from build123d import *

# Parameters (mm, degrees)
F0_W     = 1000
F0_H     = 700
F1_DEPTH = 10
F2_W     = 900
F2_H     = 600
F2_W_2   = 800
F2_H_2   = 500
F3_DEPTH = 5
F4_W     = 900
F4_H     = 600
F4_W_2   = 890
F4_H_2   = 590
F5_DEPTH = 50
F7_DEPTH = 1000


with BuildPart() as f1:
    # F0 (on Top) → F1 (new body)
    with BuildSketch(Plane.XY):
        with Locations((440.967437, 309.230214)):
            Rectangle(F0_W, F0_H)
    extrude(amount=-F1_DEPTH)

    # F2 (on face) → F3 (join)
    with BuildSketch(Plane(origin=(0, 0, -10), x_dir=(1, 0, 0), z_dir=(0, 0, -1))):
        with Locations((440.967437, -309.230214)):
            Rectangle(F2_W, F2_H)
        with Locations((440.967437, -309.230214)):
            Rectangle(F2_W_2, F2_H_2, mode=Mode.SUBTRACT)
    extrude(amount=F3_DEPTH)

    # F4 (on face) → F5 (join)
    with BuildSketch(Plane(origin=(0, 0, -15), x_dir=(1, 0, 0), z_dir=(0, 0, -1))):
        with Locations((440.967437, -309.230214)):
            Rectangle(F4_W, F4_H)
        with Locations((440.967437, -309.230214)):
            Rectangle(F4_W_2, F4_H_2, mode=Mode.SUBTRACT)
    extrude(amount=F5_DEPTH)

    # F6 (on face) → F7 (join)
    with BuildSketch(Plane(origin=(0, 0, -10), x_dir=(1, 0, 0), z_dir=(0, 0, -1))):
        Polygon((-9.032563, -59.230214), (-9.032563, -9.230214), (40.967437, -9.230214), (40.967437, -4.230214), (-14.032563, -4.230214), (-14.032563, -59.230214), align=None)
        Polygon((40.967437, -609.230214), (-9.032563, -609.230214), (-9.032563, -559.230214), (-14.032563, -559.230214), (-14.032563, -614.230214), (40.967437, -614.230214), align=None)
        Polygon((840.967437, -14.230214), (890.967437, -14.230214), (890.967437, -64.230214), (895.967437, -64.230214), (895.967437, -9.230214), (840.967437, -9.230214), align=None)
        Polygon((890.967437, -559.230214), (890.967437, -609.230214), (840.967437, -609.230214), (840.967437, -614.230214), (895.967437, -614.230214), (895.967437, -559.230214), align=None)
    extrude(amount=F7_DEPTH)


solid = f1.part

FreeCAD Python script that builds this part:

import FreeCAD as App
import Part
import Sketcher


def add_polygon(sketch, points):
    """Adds a closed chain of lines whose ends are joined by coincident constraints."""
    first, n = sketch.GeometryCount, len(points)
    for a, b in zip(points, points[1:] + points[:1]):
        sketch.addGeometry(Part.LineSegment(App.Vector(*a, 0), App.Vector(*b, 0)), False)
    for i in range(n):
        sketch.addConstraint(Sketcher.Constraint("Coincident", first + i, 2, first + (i + 1) % n, 1))

doc = App.newDocument("Part")
params = doc.addObject("Spreadsheet::Sheet", "Params")
for row, (alias, value) in enumerate([
    ("sketch1_width", "1000 mm"),
    ("sketch1_height", "700 mm"),
    ("pad1_length", "10 mm"),
    ("sketch2_width", "900 mm"),
    ("sketch2_width2", "800 mm"),
    ("sketch2_height", "600 mm"),
    ("sketch2_height2", "500 mm"),
    ("pad2_length", "5 mm"),
    ("sketch3_width", "900 mm"),
    ("sketch3_width2", "890 mm"),
    ("sketch3_height", "600 mm"),
    ("sketch3_height2", "590 mm"),
    ("pad3_length", "50 mm"),
    ("sketch4_width", "50 mm"),
    ("sketch4_width2", "55 mm"),
    ("pad4_length", "1000 mm"),
], start=1):
    params.set(f"A{row}", alias)
    params.set(f"B{row}", "=" + value)
    params.setAlias(f"B{row}", alias)

body = doc.addObject("PartDesign::Body", "Body")

# Sketch on XY plane
sketch1 = body.newObject("Sketcher::SketchObject", "Sketch")
sketch1.AttachmentSupport = (doc.getObject("XY_Plane"), [""])
sketch1.MapMode = "FlatFace"
add_polygon(sketch1, [(-59, 659), (-59, -41), (941, -41), (941, 659)])  # lines 0-3
sketch1.addConstraint([
    Sketcher.Constraint("Vertical", 0),
    Sketcher.Constraint("Horizontal", 1),
    Sketcher.Constraint("Vertical", 2),
    Sketcher.Constraint("Horizontal", 3),
    Sketcher.Constraint("DistanceX", 1, 1, 1, 2, 1000.0),
    Sketcher.Constraint("DistanceY", 0, 2, 0, 1, 700.0),
    Sketcher.Constraint("DistanceX", 0, 2, -1, 1, 59.032563),
    Sketcher.Constraint("DistanceY", 0, 2, -1, 1, 40.769786),
])
sketch1.setExpression("Constraints[8]", "Params.sketch1_width")
sketch1.setExpression("Constraints[9]", "Params.sketch1_height")
pad1 = body.newObject("PartDesign::Pad", "Pad")
pad1.Profile = sketch1
pad1.setExpression("Length", "Params.pad1_length")
pad1.Reversed = True

# Sketch on XY plane
sketch2 = body.newObject("Sketcher::SketchObject", "Sketch001")
sketch2.AttachmentSupport = (doc.getObject("XY_Plane"), [""])
sketch2.MapMode = "FlatFace"
sketch2.AttachmentOffset = App.Placement(App.Vector(0, 0, -10), App.Rotation())
add_polygon(sketch2, [(-9, 9), (-9, 609), (891, 609), (891, 9)])  # lines 0-3
add_polygon(sketch2, [(841, 559), (41, 559), (41, 59), (841, 59)])  # lines 4-7
sketch2.addConstraint([
    Sketcher.Constraint("Vertical", 0),
    Sketcher.Constraint("Horizontal", 1),
    Sketcher.Constraint("Vertical", 2),
    Sketcher.Constraint("Horizontal", 3),
    Sketcher.Constraint("Horizontal", 4),
    Sketcher.Constraint("Vertical", 5),
    Sketcher.Constraint("Horizontal", 6),
    Sketcher.Constraint("Vertical", 7),
    Sketcher.Constraint("DistanceX", 1, 1, 1, 2, 900.0),
    Sketcher.Constraint("DistanceX", 4, 2, 4, 1, 800.0),
    Sketcher.Constraint("DistanceY", 0, 1, 0, 2, 600.0),
    Sketcher.Constraint("DistanceY", 5, 2, 5, 1, 500.0),
    Sketcher.Constraint("DistanceX", 0, 2, 4, 2, 50.0),
    Sketcher.Constraint("DistanceY", 4, 2, 0, 2, 50.0),
    Sketcher.Constraint("DistanceX", 0, 2, -1, 1, 9.032563),
    Sketcher.Constraint("DistanceY", -1, 1, 0, 2, 609.230214),
])
sketch2.setExpression("Constraints[16]", "Params.sketch2_width")
sketch2.setExpression("Constraints[17]", "Params.sketch2_width2")
sketch2.setExpression("Constraints[18]", "Params.sketch2_height")
sketch2.setExpression("Constraints[19]", "Params.sketch2_height2")
pad2 = body.newObject("PartDesign::Pad", "Pad001")
pad2.Profile = sketch2
pad2.setExpression("Length", "Params.pad2_length")
pad2.Reversed = True

# Sketch on XY plane
sketch3 = body.newObject("Sketcher::SketchObject", "Sketch002")
sketch3.AttachmentSupport = (doc.getObject("XY_Plane"), [""])
sketch3.MapMode = "FlatFace"
sketch3.AttachmentOffset = App.Placement(App.Vector(0, 0, -15), App.Rotation())
add_polygon(sketch3, [(-9, 9), (-9, 609), (891, 609), (891, 9)])  # lines 0-3
add_polygon(sketch3, [(886, 604), (-4, 604), (-4, 14), (886, 14)])  # lines 4-7
sketch3.addConstraint([
    Sketcher.Constraint("Vertical", 0),
    Sketcher.Constraint("Horizontal", 1),
    Sketcher.Constraint("Vertical", 2),
    Sketcher.Constraint("Horizontal", 3),
    Sketcher.Constraint("Horizontal", 4),
    Sketcher.Constraint("Vertical", 5),
    Sketcher.Constraint("Horizontal", 6),
    Sketcher.Constraint("Vertical", 7),
    Sketcher.Constraint("DistanceX", 1, 1, 1, 2, 900.0),
    Sketcher.Constraint("DistanceX", 4, 2, 4, 1, 890.0),
    Sketcher.Constraint("DistanceY", 0, 1, 0, 2, 600.0),
    Sketcher.Constraint("DistanceY", 5, 2, 5, 1, 590.0),
    Sketcher.Constraint("DistanceX", 0, 2, 4, 2, 5.0),
    Sketcher.Constraint("DistanceY", 4, 2, 0, 2, 5.0),
    Sketcher.Constraint("DistanceX", 0, 2, -1, 1, 9.032563),
    Sketcher.Constraint("DistanceY", -1, 1, 0, 2, 609.230214),
])
sketch3.setExpression("Constraints[16]", "Params.sketch3_width")
sketch3.setExpression("Constraints[17]", "Params.sketch3_width2")
sketch3.setExpression("Constraints[18]", "Params.sketch3_height")
sketch3.setExpression("Constraints[19]", "Params.sketch3_height2")
pad3 = body.newObject("PartDesign::Pad", "Pad002")
pad3.Profile = sketch3
pad3.setExpression("Length", "Params.pad3_length")
pad3.Reversed = True

# Sketch on XY plane
sketch4 = body.newObject("Sketcher::SketchObject", "Sketch003")
sketch4.AttachmentSupport = (doc.getObject("XY_Plane"), [""])
sketch4.MapMode = "FlatFace"
sketch4.AttachmentOffset = App.Placement(App.Vector(0, 0, -10), App.Rotation())
add_polygon(sketch4, [(-9, 59), (-9, 9), (41, 9), (41, 4), (-14, 4), (-14, 59)])  # lines 0-5
add_polygon(sketch4, [(41, 609), (-9, 609), (-9, 559), (-14, 559), (-14, 614), (41, 614)])  # lines 6-11
add_polygon(sketch4, [(841, 14), (891, 14), (891, 64), (896, 64), (896, 9), (841, 9)])  # lines 12-17
add_polygon(sketch4, [(891, 559), (891, 609), (841, 609), (841, 614), (896, 614), (896, 559)])  # lines 18-23
sketch4.addConstraint([
    Sketcher.Constraint("Vertical", 0),
    Sketcher.Constraint("Horizontal", 1),
    Sketcher.Constraint("Vertical", 2),
    Sketcher.Constraint("Horizontal", 3),
    Sketcher.Constraint("Vertical", 4),
    Sketcher.Constraint("Horizontal", 5),
    Sketcher.Constraint("Horizontal", 6),
    Sketcher.Constraint("Vertical", 7),
    Sketcher.Constraint("Horizontal", 8),
    Sketcher.Constraint("Vertical", 9),
    Sketcher.Constraint("Horizontal", 10),
    Sketcher.Constraint("Vertical", 11),
    Sketcher.Constraint("Horizontal", 12),
    Sketcher.Constraint("Vertical", 13),
    Sketcher.Constraint("Horizontal", 14),
    Sketcher.Constraint("Vertical", 15),
    Sketcher.Constraint("Horizontal", 16),
    Sketcher.Constraint("Vertical", 17),
    Sketcher.Constraint("Vertical", 18),
    Sketcher.Constraint("Horizontal", 19),
    Sketcher.Constraint("Vertical", 20),
    Sketcher.Constraint("Horizontal", 21),
    Sketcher.Constraint("Vertical", 22),
    Sketcher.Constraint("Horizontal", 23),
    Sketcher.Constraint("Horizontal", 1, 2, 15, 2),
    Sketcher.Constraint("Horizontal", 11, 2, 18, 2),
    Sketcher.Constraint("Horizontal", 10, 2, 20, 2),
    Sketcher.Constraint("Horizontal", 8, 2, 22, 2),
    Sketcher.Constraint("Vertical", 5, 2, 6, 2),
    Sketcher.Constraint("Vertical", 4, 2, 8, 2),
    Sketcher.Constraint("Vertical", 2, 2, 10, 2),
    Sketcher.Constraint("Vertical", 13, 2, 18, 2),
    Sketcher.Constraint("Vertical", 17, 2, 19, 2),
    Sketcher.Constraint("Vertical", 15, 2, 21, 2),
    Sketcher.Constraint("Equal", 6, 12),
    Sketcher.Constraint("Equal", 8, 14),
    Sketcher.Constraint("Equal", 19, 0),
    Sketcher.Constraint("Equal", 23, 2),
    Sketcher.Constraint("Equal", 0, 7),
    Sketcher.Constraint("Equal", 4, 9),
    Sketcher.Constraint("Equal", 7, 13),
    Sketcher.Constraint("Equal", 9, 15),
    Sketcher.Constraint("DistanceX", 1, 1, 1, 2, 50.0),
    Sketcher.Constraint("DistanceX", 3, 2, 3, 1, 55.0),
    Sketcher.Constraint("DistanceY", 5, 2, 6, 2, 550.0),
    Sketcher.Constraint("DistanceX", 1, 2, 12, 2, 850.0),
    Sketcher.Constraint("DistanceX", 0, 2, -1, 1, 9.032563),
    Sketcher.Constraint("DistanceY", -1, 1, 0, 2, 9.230214),
])
sketch4.setExpression("Constraints[66]", "Params.sketch4_width")
sketch4.setExpression("Constraints[67]", "Params.sketch4_width2")
pad4 = body.newObject("PartDesign::Pad", "Pad003")
pad4.Profile = sketch4
pad4.setExpression("Length", "Params.pad4_length")
pad4.Reversed = True

doc.recompute()
